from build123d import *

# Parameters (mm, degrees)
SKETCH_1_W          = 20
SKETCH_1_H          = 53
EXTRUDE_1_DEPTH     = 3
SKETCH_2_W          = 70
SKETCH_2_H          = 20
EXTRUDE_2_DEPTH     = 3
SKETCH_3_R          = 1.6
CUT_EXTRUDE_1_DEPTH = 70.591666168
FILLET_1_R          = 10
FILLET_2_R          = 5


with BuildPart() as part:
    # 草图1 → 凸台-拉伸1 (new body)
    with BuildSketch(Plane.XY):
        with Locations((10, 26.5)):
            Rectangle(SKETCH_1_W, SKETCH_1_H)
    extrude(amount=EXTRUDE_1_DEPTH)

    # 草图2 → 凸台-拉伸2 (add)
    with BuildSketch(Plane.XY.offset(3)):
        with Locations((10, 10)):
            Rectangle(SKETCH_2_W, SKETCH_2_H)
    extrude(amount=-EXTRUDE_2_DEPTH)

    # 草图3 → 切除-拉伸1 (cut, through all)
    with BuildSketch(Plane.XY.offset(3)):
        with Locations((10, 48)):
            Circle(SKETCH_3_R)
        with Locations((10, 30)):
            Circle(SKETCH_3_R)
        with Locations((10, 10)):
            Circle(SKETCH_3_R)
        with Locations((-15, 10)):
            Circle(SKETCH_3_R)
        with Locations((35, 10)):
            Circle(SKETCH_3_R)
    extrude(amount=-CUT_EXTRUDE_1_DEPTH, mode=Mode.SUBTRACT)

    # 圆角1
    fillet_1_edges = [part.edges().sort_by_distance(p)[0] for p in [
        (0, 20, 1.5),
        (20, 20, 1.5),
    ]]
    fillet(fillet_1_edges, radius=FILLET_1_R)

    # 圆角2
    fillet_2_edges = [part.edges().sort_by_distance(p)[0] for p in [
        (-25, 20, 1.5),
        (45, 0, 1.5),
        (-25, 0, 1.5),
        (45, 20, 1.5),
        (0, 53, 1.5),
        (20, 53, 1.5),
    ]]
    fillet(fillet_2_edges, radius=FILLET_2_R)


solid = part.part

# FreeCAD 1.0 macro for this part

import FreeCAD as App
import Part
import Sketcher

V = App.Vector
Q = App.Units.Quantity


def edges_at(feature, points):
    """Names of the edges that pass closest to the given points."""
    edges = feature.Shape.Edges
    near = lambda p: min(range(len(edges)), key=lambda i: edges[i].distToShape(Part.Vertex(*p))[0])
    return sorted({f"Edge{near(p) + 1}" for p in points})


def add_polygon(sketch, points):
    """Adds a closed chain of lines whose ends are joined by coincident constraints."""
    first, n = sketch.GeometryCount, len(points)
    for a, b in zip(points, points[1:] + points[:1]):
        sketch.addGeometry(Part.LineSegment(App.Vector(*a, 0), App.Vector(*b, 0)), False)
    for i in range(n):
        sketch.addConstraint(Sketcher.Constraint("Coincident", first + i, 2, first + (i + 1) % n, 1))

doc = App.newDocument("Part")
body = doc.addObject("PartDesign::Body", "Body")

# Sketch on XY plane
sketch1 = body.newObject("Sketcher::SketchObject", "Sketch")
sketch1.AttachmentSupport = (doc.getObject("XY_Plane"), [""])
sketch1.MapMode = "FlatFace"
add_polygon(sketch1, [(0, 53), (0, 0), (20, 0), (20, 53)])  # lines 0-3
sketch1.addConstraint([
    Sketcher.Constraint("Vertical", 0),
    Sketcher.Constraint("Horizontal", 1),
    Sketcher.Constraint("Vertical", 2),
    Sketcher.Constraint("Horizontal", 3),
    Sketcher.Constraint("Coincident", 0, 2, -1, 1),
    Sketcher.Constraint("DistanceX", 1, 1, 1, 2, Q("20 mm")),
    Sketcher.Constraint("DistanceY", 0, 2, 0, 1, Q("53 mm")),
])
pad1 = body.newObject("PartDesign::Pad", "Pad")
pad1.Profile = sketch1
pad1.Length = 3

# Sketch on XY plane
sketch2 = body.newObject("Sketcher::SketchObject", "Sketch001")
sketch2.AttachmentSupport = (doc.getObject("XY_Plane"), [""])
sketch2.MapMode = "FlatFace"
sketch2.AttachmentOffset = App.Placement(V(0, 0, 3), App.Rotation())
add_polygon(sketch2, [(-25, 20), (-25, 0), (45, 0), (45, 20)])  # lines 0-3
sketch2.addConstraint([
    Sketcher.Constraint("Vertical", 0),
    Sketcher.Constraint("Horizontal", 1),
    Sketcher.Constraint("Vertical", 2),
    Sketcher.Constraint("Horizontal", 3),
    Sketcher.Constraint("PointOnObject", 0, 2, -1),
    Sketcher.Constraint("DistanceX", 1, 1, 1, 2, Q("70 mm")),
    Sketcher.Constraint("DistanceY", 0, 2, 0, 1, Q("20 mm")),
    Sketcher.Constraint("DistanceX", 0, 2, -1, 1, Q("25 mm")),
])
pad2 = body.newObject("PartDesign::Pad", "Pad001")
pad2.Profile = sketch2
pad2.Length = 3
pad2.Reversed = True

# Sketch on XY plane
sketch3 = body.newObject("Sketcher::SketchObject", "Sketch002")
sketch3.AttachmentSupport = (doc.getObject("XY_Plane"), [""])
sketch3.MapMode = "FlatFace"
sketch3.AttachmentOffset = App.Placement(V(0, 0, 3), App.Rotation())
sketch3.addGeometry([
    Part.Circle(V(10, 48, 0), V(0, 0, 1), 1.6),  # 0
    Part.Circle(V(10, 30, 0), V(0, 0, 1), 1.6),  # 1
    Part.Circle(V(10, 10, 0), V(0, 0, 1), 1.6),  # 2
    Part.Circle(V(-15, 10, 0), V(0, 0, 1), 1.6),  # 3
    Part.Circle(V(35, 10, 0), V(0, 0, 1), 1.6),  # 4
], False)
sketch3.addConstraint([
    Sketcher.Constraint("Equal", 0, 1),
    Sketcher.Constraint("Equal", 1, 2),
    Sketcher.Constraint("Equal", 2, 3),
    Sketcher.Constraint("Equal", 3, 4),
    Sketcher.Constraint("Horizontal", 2, 3, 3, 3),
    Sketcher.Constraint("Horizontal", 3, 3, 4, 3),
    Sketcher.Constraint("Vertical", 0, 3, 1, 3),
    Sketcher.Constraint("Vertical", 1, 3, 2, 3),
    Sketcher.Constraint("Diameter", 0, Q("3.2 mm")),
    Sketcher.Constraint("DistanceX", -1, 1, 0, 3, Q("10 mm")),
    Sketcher.Constraint("DistanceY", -1, 1, 0, 3, Q("48 mm")),
    Sketcher.Constraint("DistanceY", -1, 1, 1, 3, Q("30 mm")),
    Sketcher.Constraint("DistanceY", -1, 1, 2, 3, Q("10 mm")),
    Sketcher.Constraint("DistanceX", 3, 3, -1, 1, Q("15 mm")),
    Sketcher.Constraint("DistanceX", -1, 1, 4, 3, Q("35 mm")),
])
pocket1 = body.newObject("PartDesign::Pocket", "Pocket")
pocket1.Profile = sketch3
pocket1.Type = "ThroughAll"
doc.recompute()

fillet = body.newObject("PartDesign::Fillet", "Fillet")
fillet.Base = (pocket1, edges_at(pocket1, [(0, 20, 1.5), (20, 20, 1.5)]))
fillet.Radius = 10
doc.recompute()

fillet2 = body.newObject("PartDesign::Fillet", "Fillet001")
fillet2.Base = (fillet, edges_at(fillet, [
    (-25, 20, 1.5),
    (45, 0, 1.5),
    (-25, 0, 1.5),
    (45, 20, 1.5),
    (0, 53, 1.5),
    (20, 53, 1.5),
]))
fillet2.Radius = 5

doc.recompute()
